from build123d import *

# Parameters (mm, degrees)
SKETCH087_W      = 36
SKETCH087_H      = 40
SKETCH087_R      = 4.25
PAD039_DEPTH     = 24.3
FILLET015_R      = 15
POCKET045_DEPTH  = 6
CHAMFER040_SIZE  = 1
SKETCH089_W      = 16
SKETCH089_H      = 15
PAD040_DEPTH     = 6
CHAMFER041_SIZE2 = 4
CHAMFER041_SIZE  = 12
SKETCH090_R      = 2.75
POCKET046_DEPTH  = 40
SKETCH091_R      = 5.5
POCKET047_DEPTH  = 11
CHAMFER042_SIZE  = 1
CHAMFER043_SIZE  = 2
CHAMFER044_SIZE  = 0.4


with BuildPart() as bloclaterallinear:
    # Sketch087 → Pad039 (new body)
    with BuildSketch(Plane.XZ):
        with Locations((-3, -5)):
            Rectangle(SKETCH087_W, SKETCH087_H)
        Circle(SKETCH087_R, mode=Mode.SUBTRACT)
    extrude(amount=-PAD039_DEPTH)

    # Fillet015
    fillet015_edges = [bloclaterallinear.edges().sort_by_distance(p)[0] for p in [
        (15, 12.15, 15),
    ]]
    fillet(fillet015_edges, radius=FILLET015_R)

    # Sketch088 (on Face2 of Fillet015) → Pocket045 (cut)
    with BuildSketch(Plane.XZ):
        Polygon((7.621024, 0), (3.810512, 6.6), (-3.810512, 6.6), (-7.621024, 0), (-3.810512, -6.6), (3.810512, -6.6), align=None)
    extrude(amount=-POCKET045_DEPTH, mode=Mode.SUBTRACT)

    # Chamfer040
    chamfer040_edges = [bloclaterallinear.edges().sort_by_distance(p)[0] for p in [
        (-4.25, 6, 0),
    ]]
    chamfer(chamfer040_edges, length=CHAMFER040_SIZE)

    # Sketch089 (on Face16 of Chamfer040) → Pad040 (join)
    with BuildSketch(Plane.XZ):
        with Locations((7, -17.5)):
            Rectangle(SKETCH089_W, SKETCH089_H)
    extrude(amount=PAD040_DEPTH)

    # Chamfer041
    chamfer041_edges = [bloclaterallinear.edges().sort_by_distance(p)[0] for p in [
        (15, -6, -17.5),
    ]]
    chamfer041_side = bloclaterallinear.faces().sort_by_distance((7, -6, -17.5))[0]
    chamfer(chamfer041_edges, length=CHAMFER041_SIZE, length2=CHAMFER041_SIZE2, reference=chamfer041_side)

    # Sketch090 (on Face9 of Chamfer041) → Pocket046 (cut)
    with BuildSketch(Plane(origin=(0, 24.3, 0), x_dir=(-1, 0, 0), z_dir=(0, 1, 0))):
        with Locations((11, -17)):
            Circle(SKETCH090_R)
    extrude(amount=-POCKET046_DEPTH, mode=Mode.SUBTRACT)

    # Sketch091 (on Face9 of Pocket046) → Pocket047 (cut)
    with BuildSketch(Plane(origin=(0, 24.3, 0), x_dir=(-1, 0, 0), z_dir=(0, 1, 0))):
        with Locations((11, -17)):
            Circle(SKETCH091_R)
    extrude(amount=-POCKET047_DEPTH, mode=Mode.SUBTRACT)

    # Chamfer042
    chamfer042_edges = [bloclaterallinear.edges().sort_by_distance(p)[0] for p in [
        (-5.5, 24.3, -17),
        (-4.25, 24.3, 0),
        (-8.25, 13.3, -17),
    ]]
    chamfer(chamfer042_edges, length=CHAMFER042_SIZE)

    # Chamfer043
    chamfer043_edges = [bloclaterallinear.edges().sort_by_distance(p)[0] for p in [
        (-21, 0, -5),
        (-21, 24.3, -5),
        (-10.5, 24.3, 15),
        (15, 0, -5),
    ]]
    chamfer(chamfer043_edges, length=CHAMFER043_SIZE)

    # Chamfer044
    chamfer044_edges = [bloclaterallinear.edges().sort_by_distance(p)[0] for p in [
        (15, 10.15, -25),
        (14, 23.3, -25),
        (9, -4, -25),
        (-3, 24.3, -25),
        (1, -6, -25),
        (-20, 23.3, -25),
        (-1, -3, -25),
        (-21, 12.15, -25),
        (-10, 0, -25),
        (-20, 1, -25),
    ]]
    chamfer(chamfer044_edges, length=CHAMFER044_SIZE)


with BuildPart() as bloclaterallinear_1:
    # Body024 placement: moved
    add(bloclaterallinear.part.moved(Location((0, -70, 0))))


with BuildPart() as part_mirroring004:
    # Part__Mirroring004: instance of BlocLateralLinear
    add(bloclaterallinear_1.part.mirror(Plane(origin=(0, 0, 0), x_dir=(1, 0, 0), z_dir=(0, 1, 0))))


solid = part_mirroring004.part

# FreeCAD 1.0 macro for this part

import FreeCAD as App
import Part
import Sketcher

V = App.Vector
Q = App.Units.Quantity


def edges_at(feature, points):
    """Names of the edges that pass closest to the given points."""
    edges = feature.Shape.Edges
    near = lambda p: min(range(len(edges)), key=lambda i: edges[i].distToShape(Part.Vertex(*p))[0])
    return sorted({f"Edge{near(p) + 1}" for p in points})

doc = App.newDocument("Part")
body = doc.addObject("PartDesign::Body", "Body")

# Sketch on XZ plane
sketch1 = doc.addObject("Sketcher::SketchObject", "Sketch")
body.addObject(sketch1)
sketch1.AttachmentSupport = (doc.XZ_Plane, [""])
sketch1.MapMode = "FlatFace"
sketch1.addGeometry(Part.LineSegment(V(-21, 15, 0), V(-21, -25, 0)), False)
sketch1.addGeometry(Part.LineSegment(V(-21, -25, 0), V(15, -25, 0)), False)
sketch1.addGeometry(Part.LineSegment(V(15, -25, 0), V(15, 15, 0)), False)
sketch1.addGeometry(Part.LineSegment(V(15, 15, 0), V(-21, 15, 0)), False)
sketch1.addGeometry(Part.Circle(V(0, 0, 0), V(0, 0, 1), 4.2), False)
sketch1.addConstraint(Sketcher.Constraint("Coincident", 0, 2, 1, 1))
sketch1.addConstraint(Sketcher.Constraint("Coincident", 1, 2, 2, 1))
sketch1.addConstraint(Sketcher.Constraint("Coincident", 2, 2, 3, 1))
sketch1.addConstraint(Sketcher.Constraint("Coincident", 3, 2, 0, 1))
sketch1.addConstraint(Sketcher.Constraint("Vertical", 0))
sketch1.addConstraint(Sketcher.Constraint("Horizontal", 1))
sketch1.addConstraint(Sketcher.Constraint("Vertical", 2))
sketch1.addConstraint(Sketcher.Constraint("Horizontal", 3))
sketch1.addConstraint(Sketcher.Constraint("Coincident", 4, 3, -1, 1))
sketch1.addConstraint(Sketcher.Constraint("Diameter", 4, Q("8.5 mm")))
sketch1.addConstraint(Sketcher.Constraint("DistanceX", 1, 1, 1, 2, Q("36 mm")))
sketch1.addConstraint(Sketcher.Constraint("DistanceY", 0, 2, 0, 1, Q("40 mm")))
sketch1.addConstraint(Sketcher.Constraint("DistanceX", 0, 2, -1, 1, Q("21 mm")))
sketch1.addConstraint(Sketcher.Constraint("DistanceY", 0, 2, -1, 1, Q("25 mm")))
pad1 = doc.addObject("PartDesign::Pad", "Pad")
body.addObject(pad1)
pad1.Profile = sketch1
pad1.Length = 24.3
pad1.Reversed = True
doc.recompute()

fillet = doc.addObject("PartDesign::Fillet", "Fillet")
body.addObject(fillet)
fillet.Base = (pad1, edges_at(pad1, [(15, 12.15, 15)]))
fillet.Radius = 15

# Sketch on XZ plane
sketch2 = doc.addObject("Sketcher::SketchObject", "Sketch001")
body.addObject(sketch2)
sketch2.AttachmentSupport = (doc.XZ_Plane, [""])
sketch2.MapMode = "FlatFace"
sketch2.addGeometry(Part.LineSegment(V(8, 0, 0), V(4, 7, 0)), False)
sketch2.addGeometry(Part.LineSegment(V(4, 7, 0), V(-4, 7, 0)), False)
sketch2.addGeometry(Part.LineSegment(V(-4, 7, 0), V(-8, 0, 0)), False)
sketch2.addGeometry(Part.LineSegment(V(-8, 0, 0), V(-4, -7, 0)), False)
sketch2.addGeometry(Part.LineSegment(V(-4, -7, 0), V(4, -7, 0)), False)
sketch2.addGeometry(Part.LineSegment(V(4, -7, 0), V(8, 0, 0)), False)
sketch2.addConstraint(Sketcher.Constraint("Coincident", 0, 2, 1, 1))
sketch2.addConstraint(Sketcher.Constraint("Coincident", 1, 2, 2, 1))
sketch2.addConstraint(Sketcher.Constraint("Coincident", 2, 2, 3, 1))
sketch2.addConstraint(Sketcher.Constraint("Coincident", 3, 2, 4, 1))
sketch2.addConstraint(Sketcher.Constraint("Coincident", 4, 2, 5, 1))
sketch2.addConstraint(Sketcher.Constraint("Coincident", 5, 2, 0, 1))
sketch2.addConstraint(Sketcher.Constraint("Horizontal", 1))
sketch2.addConstraint(Sketcher.Constraint("Horizontal", 4))
sketch2.addConstraint(Sketcher.Constraint("Symmetric", 0, 2, 3, 2, -1, 1))
sketch2.addConstraint(Sketcher.Constraint("Symmetric", 2, 2, 5, 2, -1, 1))
sketch2.addConstraint(Sketcher.Constraint("PointOnObject", 2, 2, -1))
sketch2.addConstraint(Sketcher.Constraint("Parallel", 2, 5))
sketch2.addConstraint(Sketcher.Constraint("Vertical", 1, 2, 3, 2))
sketch2.addConstraint(Sketcher.Constraint("Angle", 0, Q("120.000001 deg")))
sketch2.addConstraint(Sketcher.Constraint("DistanceY", -1, 1, 0, 2, Q("6.6 mm")))
sketch2.addConstraint(Sketcher.Constraint("DistanceX", 1, 2, 1, 1, Q("7.621024 mm")))
pocket1 = doc.addObject("PartDesign::Pocket", "Pocket")
body.addObject(pocket1)
pocket1.Profile = sketch2
pocket1.Length = 6
doc.recompute()

chamfer = doc.addObject("PartDesign::Chamfer", "Chamfer")
body.addObject(chamfer)
chamfer.Base = (pocket1, edges_at(pocket1, [(-4.25, 6, 0)]))
chamfer.Size = 1

# Sketch on XZ plane
sketch3 = doc.addObject("Sketcher::SketchObject", "Sketch002")
body.addObject(sketch3)
sketch3.AttachmentSupport = (doc.XZ_Plane, [""])
sketch3.MapMode = "FlatFace"
sketch3.addGeometry(Part.LineSegment(V(-1, -10, 0), V(-1, -25, 0)), False)
sketch3.addGeometry(Part.LineSegment(V(-1, -25, 0), V(15, -25, 0)), False)
sketch3.addGeometry(Part.LineSegment(V(15, -25, 0), V(15, -10, 0)), False)
sketch3.addGeometry(Part.LineSegment(V(15, -10, 0), V(-1, -10, 0)), False)
sketch3.addConstraint(Sketcher.Constraint("Coincident", 0, 2, 1, 1))
sketch3.addConstraint(Sketcher.Constraint("Coincident", 1, 2, 2, 1))
sketch3.addConstraint(Sketcher.Constraint("Coincident", 2, 2, 3, 1))
sketch3.addConstraint(Sketcher.Constraint("Coincident", 3, 2, 0, 1))
sketch3.addConstraint(Sketcher.Constraint("Vertical", 0))
sketch3.addConstraint(Sketcher.Constraint("Horizontal", 1))
sketch3.addConstraint(Sketcher.Constraint("Vertical", 2))
sketch3.addConstraint(Sketcher.Constraint("Horizontal", 3))
sketch3.addConstraint(Sketcher.Constraint("DistanceX", 1, 1, 1, 2, Q("16 mm")))
sketch3.addConstraint(Sketcher.Constraint("DistanceY", 0, 2, 0, 1, Q("15 mm")))
sketch3.addConstraint(Sketcher.Constraint("DistanceX", 0, 2, -1, 1, Q("1 mm")))
sketch3.addConstraint(Sketcher.Constraint("DistanceY", 0, 2, -1, 1, Q("25 mm")))
pad2 = doc.addObject("PartDesign::Pad", "Pad001")
body.addObject(pad2)
pad2.Profile = sketch3
pad2.Length = 6
doc.recompute()

chamfer2 = doc.addObject("PartDesign::Chamfer", "Chamfer001")
body.addObject(chamfer2)
chamfer2.Base = (pad2, edges_at(pad2, [(15, -6, -17.5)]))
chamfer2.ChamferType = "Two distances"
chamfer2.Size = 12
chamfer2.Size2 = 4

# Sketch on XZ plane
sketch4 = doc.addObject("Sketcher::SketchObject", "Sketch003")
body.addObject(sketch4)
sketch4.AttachmentSupport = (doc.XZ_Plane, [""])
sketch4.MapMode = "FlatFace"
sketch4.AttachmentOffset = App.Placement(V(0, 0, -24.3), App.Rotation())
sketch4.addGeometry(Part.Circle(V(-11, -17, 0), V(0, 0, 1), 2.8), False)
sketch4.addConstraint(Sketcher.Constraint("Diameter", 0, Q("5.5 mm")))
sketch4.addConstraint(Sketcher.Constraint("DistanceX", 0, 3, -1, 1, Q("11 mm")))
sketch4.addConstraint(Sketcher.Constraint("DistanceY", 0, 3, -1, 1, Q("17 mm")))
pocket2 = doc.addObject("PartDesign::Pocket", "Pocket001")
body.addObject(pocket2)
pocket2.Profile = sketch4
pocket2.Length = 40
pocket2.Reversed = True

# Sketch on XZ plane
sketch5 = doc.addObject("Sketcher::SketchObject", "Sketch004")
body.addObject(sketch5)
sketch5.AttachmentSupport = (doc.XZ_Plane, [""])
sketch5.MapMode = "FlatFace"
sketch5.AttachmentOffset = App.Placement(V(0, 0, -24.3), App.Rotation())
sketch5.addGeometry(Part.Circle(V(-11, -17, 0), V(0, 0, 1), 6), False)
sketch5.addConstraint(Sketcher.Constraint("Diameter", 0, Q("11 mm")))
sketch5.addConstraint(Sketcher.Constraint("DistanceX", 0, 3, -1, 1, Q("11 mm")))
sketch5.addConstraint(Sketcher.Constraint("DistanceY", 0, 3, -1, 1, Q("17 mm")))
pocket3 = doc.addObject("PartDesign::Pocket", "Pocket002")
body.addObject(pocket3)
pocket3.Profile = sketch5
pocket3.Length = 11
pocket3.Reversed = True
doc.recompute()

chamfer3 = doc.addObject("PartDesign::Chamfer", "Chamfer002")
body.addObject(chamfer3)
chamfer3.Base = (pocket3, edges_at(pocket3, [(-5.5, 24.3, -17), (-4.25, 24.3, 0), (-8.25, 13.3, -17)]))
chamfer3.Size = 1
doc.recompute()

chamfer4 = doc.addObject("PartDesign::Chamfer", "Chamfer003")
body.addObject(chamfer4)
chamfer4.Base = (chamfer3, edges_at(chamfer3, [
    (-21, 0, -5),
    (-21, 24.3, -5),
    (-10.5, 24.3, 15),
    (15, 0, -5),
]))
chamfer4.Size = 2
doc.recompute()

chamfer5 = doc.addObject("PartDesign::Chamfer", "Chamfer004")
body.addObject(chamfer5)
chamfer5.Base = (chamfer4, edges_at(chamfer4, [
    (15, 10.15, -25),
    (14, 23.3, -25),
    (9, -4, -25),
    (-3, 24.3, -25),
    (1, -6, -25),
    (-20, 23.3, -25),
    (-1, -3, -25),
    (-21, 12.15, -25),
    (-10, 0, -25),
    (-20, 1, -25),
]))
chamfer5.Size = 0.4
body2 = doc.addObject("PartDesign::Body", "Body001")
doc.recompute()

body.Placement = App.Placement(V(0, -70, 0), App.Rotation(V(0, 0, 1), 0))
boolean = doc.addObject("PartDesign::Boolean", "Boolean")
body2.addObject(boolean)
boolean.Type = "Fuse"
boolean.addObjects([body])
body3 = doc.addObject("PartDesign::Body", "Body002")
doc.recompute()

mirroring = doc.addObject("Part::Mirroring", "Mirroring")
mirroring.Source = body2
mirroring.Base = V(0, 0, 0)
mirroring.Normal = V(0, 1, 0)
body3.BaseFeature = mirroring
doc.recompute()
body2.Visibility = False
mirroring.Visibility = False

doc.recompute()
